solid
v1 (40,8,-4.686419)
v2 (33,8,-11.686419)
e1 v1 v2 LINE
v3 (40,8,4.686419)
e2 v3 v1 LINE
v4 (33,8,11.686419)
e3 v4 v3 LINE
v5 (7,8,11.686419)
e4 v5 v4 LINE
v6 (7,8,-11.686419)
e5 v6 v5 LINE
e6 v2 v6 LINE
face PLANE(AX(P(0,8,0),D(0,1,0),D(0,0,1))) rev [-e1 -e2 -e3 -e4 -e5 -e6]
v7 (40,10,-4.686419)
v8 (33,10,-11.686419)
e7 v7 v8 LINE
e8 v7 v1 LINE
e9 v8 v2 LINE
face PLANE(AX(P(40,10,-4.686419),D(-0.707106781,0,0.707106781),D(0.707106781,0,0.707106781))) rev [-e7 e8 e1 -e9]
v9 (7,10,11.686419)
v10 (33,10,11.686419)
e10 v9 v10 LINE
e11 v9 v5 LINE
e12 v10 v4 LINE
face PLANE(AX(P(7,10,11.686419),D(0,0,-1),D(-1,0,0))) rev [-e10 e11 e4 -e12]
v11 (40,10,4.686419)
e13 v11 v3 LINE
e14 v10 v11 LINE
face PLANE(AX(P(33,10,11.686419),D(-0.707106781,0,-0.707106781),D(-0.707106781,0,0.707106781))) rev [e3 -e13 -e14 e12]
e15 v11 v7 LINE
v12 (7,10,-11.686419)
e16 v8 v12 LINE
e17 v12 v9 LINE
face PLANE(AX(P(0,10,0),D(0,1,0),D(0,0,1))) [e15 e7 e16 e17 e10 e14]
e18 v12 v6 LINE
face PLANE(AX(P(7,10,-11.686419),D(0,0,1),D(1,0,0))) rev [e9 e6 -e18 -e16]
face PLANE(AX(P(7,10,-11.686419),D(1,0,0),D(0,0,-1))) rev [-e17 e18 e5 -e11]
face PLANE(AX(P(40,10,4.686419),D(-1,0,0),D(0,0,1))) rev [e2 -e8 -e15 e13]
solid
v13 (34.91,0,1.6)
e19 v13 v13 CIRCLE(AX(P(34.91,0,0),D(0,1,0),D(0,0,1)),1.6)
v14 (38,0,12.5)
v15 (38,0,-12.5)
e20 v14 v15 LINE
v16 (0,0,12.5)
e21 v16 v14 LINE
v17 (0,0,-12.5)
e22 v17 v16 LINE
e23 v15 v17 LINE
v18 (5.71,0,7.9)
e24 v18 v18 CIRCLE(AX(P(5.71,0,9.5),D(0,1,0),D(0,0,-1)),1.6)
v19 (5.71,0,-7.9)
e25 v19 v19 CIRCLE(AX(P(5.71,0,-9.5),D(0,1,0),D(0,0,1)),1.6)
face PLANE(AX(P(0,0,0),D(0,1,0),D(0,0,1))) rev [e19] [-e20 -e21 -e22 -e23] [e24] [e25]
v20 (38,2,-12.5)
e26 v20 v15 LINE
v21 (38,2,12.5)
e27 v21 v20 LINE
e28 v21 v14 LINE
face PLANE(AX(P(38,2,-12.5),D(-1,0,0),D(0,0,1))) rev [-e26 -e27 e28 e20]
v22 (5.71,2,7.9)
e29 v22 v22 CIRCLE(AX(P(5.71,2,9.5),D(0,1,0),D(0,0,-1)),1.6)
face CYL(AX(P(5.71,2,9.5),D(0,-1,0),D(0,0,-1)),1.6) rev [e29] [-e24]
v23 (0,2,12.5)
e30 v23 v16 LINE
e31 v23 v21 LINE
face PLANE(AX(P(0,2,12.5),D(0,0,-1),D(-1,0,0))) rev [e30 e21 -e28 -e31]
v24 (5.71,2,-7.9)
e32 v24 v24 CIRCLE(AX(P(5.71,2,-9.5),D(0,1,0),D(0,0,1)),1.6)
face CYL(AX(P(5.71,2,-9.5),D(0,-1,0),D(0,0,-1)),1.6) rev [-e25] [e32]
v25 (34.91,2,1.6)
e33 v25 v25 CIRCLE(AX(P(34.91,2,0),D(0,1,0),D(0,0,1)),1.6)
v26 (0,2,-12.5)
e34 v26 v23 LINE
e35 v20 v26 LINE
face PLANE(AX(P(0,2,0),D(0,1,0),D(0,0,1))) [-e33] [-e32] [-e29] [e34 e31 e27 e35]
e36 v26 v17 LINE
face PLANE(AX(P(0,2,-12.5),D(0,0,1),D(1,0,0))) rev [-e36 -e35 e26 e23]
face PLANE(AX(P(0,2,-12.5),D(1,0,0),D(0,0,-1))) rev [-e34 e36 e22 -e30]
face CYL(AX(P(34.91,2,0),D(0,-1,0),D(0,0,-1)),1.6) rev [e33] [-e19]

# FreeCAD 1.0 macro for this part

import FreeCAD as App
import Part
import Sketcher
Q = App.Units.Quantity


def add_polygon(sketch, points):
    """Adds a closed chain of lines whose ends are joined by coincident constraints."""
    first, n = sketch.GeometryCount, len(points)
    for a, b in zip(points, points[1:] + points[:1]):
        sketch.addGeometry(Part.LineSegment(App.Vector(*a, 0), App.Vector(*b, 0)), False)
    for i in range(n):
        sketch.addConstraint(Sketcher.Constraint("Coincident", first + i, 2, first + (i + 1) % n, 1))

doc = App.newDocument("Part")
body = doc.addObject("PartDesign::Body", "Body")

# Sketch on XZ plane
sketch1 = body.newObject("Sketcher::SketchObject", "Sketch")
sketch1.AttachmentSupport = (doc.getObject("XZ_Plane"), [""])
sketch1.MapMode = "FlatFace"
add_polygon(sketch1, [(0, -12.5), (0, 12.5), (38, 12.5), (38, -12.5)])  # lines 0-3
sketch1.addGeometry(Part.Circle(App.Vector(5.7, 9.5, 0), App.Vector(0, 0, 1), 1.6), False)  # 4
sketch1.addGeometry(Part.Circle(App.Vector(5.7, -9.5, 0), App.Vector(0, 0, 1), 1.6), False)  # 5
sketch1.addGeometry(Part.Circle(App.Vector(34.9, 0, 0), App.Vector(0, 0, 1), 1.6), False)  # 6
sketch1.addConstraint([
    Sketcher.Constraint("Vertical", 0),
    Sketcher.Constraint("Horizontal", 1),
    Sketcher.Constraint("Vertical", 2),
    Sketcher.Constraint("Horizontal", 3),
    Sketcher.Constraint("Equal", 4, 5),
    Sketcher.Constraint("Equal", 5, 6),
    Sketcher.Constraint("Symmetric", 0, 2, 3, 2, -1, 1),
    Sketcher.Constraint("Symmetric", 4, 3, 5, 3, -1),
    Sketcher.Constraint("PointOnObject", 6, 3, -1),
    Sketcher.Constraint("Diameter", 4, Q("3.2 mm")),
    Sketcher.Constraint("DistanceX", 1, 1, 1, 2, Q("38 mm")),
    Sketcher.Constraint("DistanceY", 0, 1, 0, 2, Q("25 mm")),
    Sketcher.Constraint("DistanceY", 5, 3, 4, 3, Q("19 mm")),
    Sketcher.Constraint("DistanceX", 4, 3, 6, 3, Q("29.2 mm")),
    Sketcher.Constraint("DistanceX", -1, 1, 4, 3, Q("5.71 mm")),
])
pad1 = body.newObject("PartDesign::Pad", "Pad")
pad1.Profile = sketch1
pad1.Length = 2
pad1.Reversed = True
body2 = doc.addObject("PartDesign::Body", "Body001")

# Sketch on XZ plane
sketch2 = body2.newObject("Sketcher::SketchObject", "Sketch001")
sketch2.AttachmentSupport = (doc.getObject("XZ_Plane001"), [""])
sketch2.MapMode = "FlatFace"
sketch2.AttachmentOffset = App.Placement(App.Vector(0, 0, -8), App.Rotation())
add_polygon(sketch2, [(33, 12), (40, 5), (40, -5), (33, -12), (7, -12), (7, 12)])  # lines 0-5
sketch2.addConstraint([
    Sketcher.Constraint("Vertical", 1),
    Sketcher.Constraint("Horizontal", 3),
    Sketcher.Constraint("Vertical", 4),
    Sketcher.Constraint("Horizontal", 5),
    Sketcher.Constraint("Symmetric", 2, 2, 5, 2, -1),
    Sketcher.Constraint("Perpendicular", 0, 2),
    Sketcher.Constraint("Equal", 0, 2),
    Sketcher.Constraint("DistanceX", 3, 2, 3, 1, Q("26 mm")),
    Sketcher.Constraint("DistanceX", -1, 1, 0, 2, Q("40 mm")),
    Sketcher.Constraint("DistanceX", -1, 1, 2, 2, Q("33 mm")),
    Sketcher.Constraint("DistanceY", 1, 2, 1, 1, Q("9.372838 mm")),
])
pad2 = body2.newObject("PartDesign::Pad", "Pad001")
pad2.Profile = sketch2
pad2.Length = 2
pad2.Reversed = True

doc.recompute()
